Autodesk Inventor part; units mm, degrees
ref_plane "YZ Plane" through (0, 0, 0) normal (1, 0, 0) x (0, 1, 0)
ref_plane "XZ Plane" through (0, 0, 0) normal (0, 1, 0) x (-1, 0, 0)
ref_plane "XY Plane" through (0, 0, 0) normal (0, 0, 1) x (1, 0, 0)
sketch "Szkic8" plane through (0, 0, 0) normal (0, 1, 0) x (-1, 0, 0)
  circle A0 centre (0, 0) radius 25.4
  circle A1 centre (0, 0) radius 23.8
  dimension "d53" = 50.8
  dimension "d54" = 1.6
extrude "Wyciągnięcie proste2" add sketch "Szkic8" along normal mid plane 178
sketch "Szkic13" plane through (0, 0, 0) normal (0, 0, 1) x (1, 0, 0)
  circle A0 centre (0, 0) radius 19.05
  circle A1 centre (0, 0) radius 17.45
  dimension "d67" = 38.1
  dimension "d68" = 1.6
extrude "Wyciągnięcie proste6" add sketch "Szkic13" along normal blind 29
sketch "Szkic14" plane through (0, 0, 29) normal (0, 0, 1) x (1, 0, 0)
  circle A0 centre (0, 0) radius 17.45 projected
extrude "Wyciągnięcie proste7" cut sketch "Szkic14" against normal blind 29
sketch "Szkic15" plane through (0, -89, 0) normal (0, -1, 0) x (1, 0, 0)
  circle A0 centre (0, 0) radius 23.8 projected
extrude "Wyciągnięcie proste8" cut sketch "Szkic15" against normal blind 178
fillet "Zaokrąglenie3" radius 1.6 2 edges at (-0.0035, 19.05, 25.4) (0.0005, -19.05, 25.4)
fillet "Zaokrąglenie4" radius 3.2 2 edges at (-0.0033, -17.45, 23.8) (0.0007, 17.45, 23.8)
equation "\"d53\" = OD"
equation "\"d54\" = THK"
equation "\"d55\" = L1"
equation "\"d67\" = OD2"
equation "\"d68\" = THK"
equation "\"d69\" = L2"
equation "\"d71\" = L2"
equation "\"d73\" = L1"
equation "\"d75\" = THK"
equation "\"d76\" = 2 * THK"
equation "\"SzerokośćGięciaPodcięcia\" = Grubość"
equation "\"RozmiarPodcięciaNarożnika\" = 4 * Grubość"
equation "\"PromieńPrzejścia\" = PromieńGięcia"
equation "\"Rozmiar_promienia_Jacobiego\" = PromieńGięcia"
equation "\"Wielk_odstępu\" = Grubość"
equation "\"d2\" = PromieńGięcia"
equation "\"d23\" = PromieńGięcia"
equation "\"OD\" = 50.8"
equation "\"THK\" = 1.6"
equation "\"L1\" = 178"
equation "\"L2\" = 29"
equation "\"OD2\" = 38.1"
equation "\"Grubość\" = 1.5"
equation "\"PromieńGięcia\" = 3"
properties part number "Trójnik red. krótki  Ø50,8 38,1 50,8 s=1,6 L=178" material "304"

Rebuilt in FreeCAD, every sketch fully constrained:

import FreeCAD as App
import Part
import Sketcher

V = App.Vector


def edges_at(feature, points):
    """Names of the edges that pass closest to the given points."""
    edges = feature.Shape.Edges
    near = lambda p: min(range(len(edges)), key=lambda i: edges[i].distToShape(Part.Vertex(*p))[0])
    return sorted({f"Edge{near(p) + 1}" for p in points})

doc = App.newDocument("Part")
body = doc.addObject("PartDesign::Body", "Body")

# Sketch on XZ plane
sketch1 = body.newObject("Sketcher::SketchObject", "Sketch")
sketch1.AttachmentSupport = (doc.getObject("XZ_Plane"), [""])
sketch1.MapMode = "FlatFace"
sketch1.addGeometry([
    Part.Circle(V(0, 0, 0), V(0, 0, 1), 25),
    Part.Circle(V(0, 0, 0), V(0, 0, 1), 24),
], False)
sketch1.addConstraint([
    Sketcher.Constraint("Coincident", 0, 3, -1, 1),
    Sketcher.Constraint("Coincident", 1, 3, -1, 1),
    Sketcher.Constraint("Diameter", 0, 50.8),
    Sketcher.Constraint("Diameter", 1, 47.6),
])
pad1 = body.newObject("PartDesign::Pad", "Pad")
pad1.Profile = sketch1
pad1.Length = 178
pad1.Midplane = True

# Sketch on XY plane
sketch2 = body.newObject("Sketcher::SketchObject", "Sketch001")
sketch2.AttachmentSupport = (doc.getObject("XY_Plane"), [""])
sketch2.MapMode = "FlatFace"
sketch2.addGeometry([
    Part.Circle(V(0, 0, 0), V(0, 0, 1), 19),
    Part.Circle(V(0, 0, 0), V(0, 0, 1), 17),
], False)
sketch2.addConstraint([
    Sketcher.Constraint("Coincident", 0, 3, -1, 1),
    Sketcher.Constraint("Coincident", 1, 3, -1, 1),
    Sketcher.Constraint("Diameter", 0, 38.1),
    Sketcher.Constraint("Diameter", 1, 34.9),
])
pad2 = body.newObject("PartDesign::Pad", "Pad001")
pad2.Profile = sketch2
pad2.Length = 29

# Sketch on XY plane
sketch3 = body.newObject("Sketcher::SketchObject", "Sketch002")
sketch3.AttachmentSupport = (doc.getObject("XY_Plane"), [""])
sketch3.MapMode = "FlatFace"
sketch3.AttachmentOffset = App.Placement(V(0, 0, 29), App.Rotation())
sketch3.addGeometry(Part.Circle(V(0, 0, 0), V(0, 0, 1), 17), False)
sketch3.addConstraint([
    Sketcher.Constraint("Coincident", 0, 3, -1, 1),
    Sketcher.Constraint("Diameter", 0, 34.9),
])
pocket1 = body.newObject("PartDesign::Pocket", "Pocket")
pocket1.Profile = sketch3
pocket1.Length = 29

# Sketch on XZ plane
sketch4 = body.newObject("Sketcher::SketchObject", "Sketch003")
sketch4.AttachmentSupport = (doc.getObject("XZ_Plane"), [""])
sketch4.MapMode = "FlatFace"
sketch4.AttachmentOffset = App.Placement(V(0, 0, 89), App.Rotation())
sketch4.addGeometry(Part.Circle(V(0, 0, 0), V(0, 0, 1), 24), False)
sketch4.addConstraint([
    Sketcher.Constraint("Coincident", 0, 3, -1, 1),
    Sketcher.Constraint("Diameter", 0, 47.6),
])
pocket2 = body.newObject("PartDesign::Pocket", "Pocket001")
pocket2.Profile = sketch4
pocket2.Length = 178
doc.recompute()

fillet = body.newObject("PartDesign::Fillet", "Fillet")
fillet.Base = (pocket2, edges_at(pocket2, [(-0.004, 19.05, 25.4), (0.001, -19.05, 25.4)]))
fillet.Radius = 1.6
doc.recompute()

fillet2 = body.newObject("PartDesign::Fillet", "Fillet001")
fillet2.Base = (fillet, edges_at(fillet, [(-0.003, -17.45, 23.8), (0.001, 17.45, 23.8)]))
fillet2.Radius = 3.2

doc.recompute()
